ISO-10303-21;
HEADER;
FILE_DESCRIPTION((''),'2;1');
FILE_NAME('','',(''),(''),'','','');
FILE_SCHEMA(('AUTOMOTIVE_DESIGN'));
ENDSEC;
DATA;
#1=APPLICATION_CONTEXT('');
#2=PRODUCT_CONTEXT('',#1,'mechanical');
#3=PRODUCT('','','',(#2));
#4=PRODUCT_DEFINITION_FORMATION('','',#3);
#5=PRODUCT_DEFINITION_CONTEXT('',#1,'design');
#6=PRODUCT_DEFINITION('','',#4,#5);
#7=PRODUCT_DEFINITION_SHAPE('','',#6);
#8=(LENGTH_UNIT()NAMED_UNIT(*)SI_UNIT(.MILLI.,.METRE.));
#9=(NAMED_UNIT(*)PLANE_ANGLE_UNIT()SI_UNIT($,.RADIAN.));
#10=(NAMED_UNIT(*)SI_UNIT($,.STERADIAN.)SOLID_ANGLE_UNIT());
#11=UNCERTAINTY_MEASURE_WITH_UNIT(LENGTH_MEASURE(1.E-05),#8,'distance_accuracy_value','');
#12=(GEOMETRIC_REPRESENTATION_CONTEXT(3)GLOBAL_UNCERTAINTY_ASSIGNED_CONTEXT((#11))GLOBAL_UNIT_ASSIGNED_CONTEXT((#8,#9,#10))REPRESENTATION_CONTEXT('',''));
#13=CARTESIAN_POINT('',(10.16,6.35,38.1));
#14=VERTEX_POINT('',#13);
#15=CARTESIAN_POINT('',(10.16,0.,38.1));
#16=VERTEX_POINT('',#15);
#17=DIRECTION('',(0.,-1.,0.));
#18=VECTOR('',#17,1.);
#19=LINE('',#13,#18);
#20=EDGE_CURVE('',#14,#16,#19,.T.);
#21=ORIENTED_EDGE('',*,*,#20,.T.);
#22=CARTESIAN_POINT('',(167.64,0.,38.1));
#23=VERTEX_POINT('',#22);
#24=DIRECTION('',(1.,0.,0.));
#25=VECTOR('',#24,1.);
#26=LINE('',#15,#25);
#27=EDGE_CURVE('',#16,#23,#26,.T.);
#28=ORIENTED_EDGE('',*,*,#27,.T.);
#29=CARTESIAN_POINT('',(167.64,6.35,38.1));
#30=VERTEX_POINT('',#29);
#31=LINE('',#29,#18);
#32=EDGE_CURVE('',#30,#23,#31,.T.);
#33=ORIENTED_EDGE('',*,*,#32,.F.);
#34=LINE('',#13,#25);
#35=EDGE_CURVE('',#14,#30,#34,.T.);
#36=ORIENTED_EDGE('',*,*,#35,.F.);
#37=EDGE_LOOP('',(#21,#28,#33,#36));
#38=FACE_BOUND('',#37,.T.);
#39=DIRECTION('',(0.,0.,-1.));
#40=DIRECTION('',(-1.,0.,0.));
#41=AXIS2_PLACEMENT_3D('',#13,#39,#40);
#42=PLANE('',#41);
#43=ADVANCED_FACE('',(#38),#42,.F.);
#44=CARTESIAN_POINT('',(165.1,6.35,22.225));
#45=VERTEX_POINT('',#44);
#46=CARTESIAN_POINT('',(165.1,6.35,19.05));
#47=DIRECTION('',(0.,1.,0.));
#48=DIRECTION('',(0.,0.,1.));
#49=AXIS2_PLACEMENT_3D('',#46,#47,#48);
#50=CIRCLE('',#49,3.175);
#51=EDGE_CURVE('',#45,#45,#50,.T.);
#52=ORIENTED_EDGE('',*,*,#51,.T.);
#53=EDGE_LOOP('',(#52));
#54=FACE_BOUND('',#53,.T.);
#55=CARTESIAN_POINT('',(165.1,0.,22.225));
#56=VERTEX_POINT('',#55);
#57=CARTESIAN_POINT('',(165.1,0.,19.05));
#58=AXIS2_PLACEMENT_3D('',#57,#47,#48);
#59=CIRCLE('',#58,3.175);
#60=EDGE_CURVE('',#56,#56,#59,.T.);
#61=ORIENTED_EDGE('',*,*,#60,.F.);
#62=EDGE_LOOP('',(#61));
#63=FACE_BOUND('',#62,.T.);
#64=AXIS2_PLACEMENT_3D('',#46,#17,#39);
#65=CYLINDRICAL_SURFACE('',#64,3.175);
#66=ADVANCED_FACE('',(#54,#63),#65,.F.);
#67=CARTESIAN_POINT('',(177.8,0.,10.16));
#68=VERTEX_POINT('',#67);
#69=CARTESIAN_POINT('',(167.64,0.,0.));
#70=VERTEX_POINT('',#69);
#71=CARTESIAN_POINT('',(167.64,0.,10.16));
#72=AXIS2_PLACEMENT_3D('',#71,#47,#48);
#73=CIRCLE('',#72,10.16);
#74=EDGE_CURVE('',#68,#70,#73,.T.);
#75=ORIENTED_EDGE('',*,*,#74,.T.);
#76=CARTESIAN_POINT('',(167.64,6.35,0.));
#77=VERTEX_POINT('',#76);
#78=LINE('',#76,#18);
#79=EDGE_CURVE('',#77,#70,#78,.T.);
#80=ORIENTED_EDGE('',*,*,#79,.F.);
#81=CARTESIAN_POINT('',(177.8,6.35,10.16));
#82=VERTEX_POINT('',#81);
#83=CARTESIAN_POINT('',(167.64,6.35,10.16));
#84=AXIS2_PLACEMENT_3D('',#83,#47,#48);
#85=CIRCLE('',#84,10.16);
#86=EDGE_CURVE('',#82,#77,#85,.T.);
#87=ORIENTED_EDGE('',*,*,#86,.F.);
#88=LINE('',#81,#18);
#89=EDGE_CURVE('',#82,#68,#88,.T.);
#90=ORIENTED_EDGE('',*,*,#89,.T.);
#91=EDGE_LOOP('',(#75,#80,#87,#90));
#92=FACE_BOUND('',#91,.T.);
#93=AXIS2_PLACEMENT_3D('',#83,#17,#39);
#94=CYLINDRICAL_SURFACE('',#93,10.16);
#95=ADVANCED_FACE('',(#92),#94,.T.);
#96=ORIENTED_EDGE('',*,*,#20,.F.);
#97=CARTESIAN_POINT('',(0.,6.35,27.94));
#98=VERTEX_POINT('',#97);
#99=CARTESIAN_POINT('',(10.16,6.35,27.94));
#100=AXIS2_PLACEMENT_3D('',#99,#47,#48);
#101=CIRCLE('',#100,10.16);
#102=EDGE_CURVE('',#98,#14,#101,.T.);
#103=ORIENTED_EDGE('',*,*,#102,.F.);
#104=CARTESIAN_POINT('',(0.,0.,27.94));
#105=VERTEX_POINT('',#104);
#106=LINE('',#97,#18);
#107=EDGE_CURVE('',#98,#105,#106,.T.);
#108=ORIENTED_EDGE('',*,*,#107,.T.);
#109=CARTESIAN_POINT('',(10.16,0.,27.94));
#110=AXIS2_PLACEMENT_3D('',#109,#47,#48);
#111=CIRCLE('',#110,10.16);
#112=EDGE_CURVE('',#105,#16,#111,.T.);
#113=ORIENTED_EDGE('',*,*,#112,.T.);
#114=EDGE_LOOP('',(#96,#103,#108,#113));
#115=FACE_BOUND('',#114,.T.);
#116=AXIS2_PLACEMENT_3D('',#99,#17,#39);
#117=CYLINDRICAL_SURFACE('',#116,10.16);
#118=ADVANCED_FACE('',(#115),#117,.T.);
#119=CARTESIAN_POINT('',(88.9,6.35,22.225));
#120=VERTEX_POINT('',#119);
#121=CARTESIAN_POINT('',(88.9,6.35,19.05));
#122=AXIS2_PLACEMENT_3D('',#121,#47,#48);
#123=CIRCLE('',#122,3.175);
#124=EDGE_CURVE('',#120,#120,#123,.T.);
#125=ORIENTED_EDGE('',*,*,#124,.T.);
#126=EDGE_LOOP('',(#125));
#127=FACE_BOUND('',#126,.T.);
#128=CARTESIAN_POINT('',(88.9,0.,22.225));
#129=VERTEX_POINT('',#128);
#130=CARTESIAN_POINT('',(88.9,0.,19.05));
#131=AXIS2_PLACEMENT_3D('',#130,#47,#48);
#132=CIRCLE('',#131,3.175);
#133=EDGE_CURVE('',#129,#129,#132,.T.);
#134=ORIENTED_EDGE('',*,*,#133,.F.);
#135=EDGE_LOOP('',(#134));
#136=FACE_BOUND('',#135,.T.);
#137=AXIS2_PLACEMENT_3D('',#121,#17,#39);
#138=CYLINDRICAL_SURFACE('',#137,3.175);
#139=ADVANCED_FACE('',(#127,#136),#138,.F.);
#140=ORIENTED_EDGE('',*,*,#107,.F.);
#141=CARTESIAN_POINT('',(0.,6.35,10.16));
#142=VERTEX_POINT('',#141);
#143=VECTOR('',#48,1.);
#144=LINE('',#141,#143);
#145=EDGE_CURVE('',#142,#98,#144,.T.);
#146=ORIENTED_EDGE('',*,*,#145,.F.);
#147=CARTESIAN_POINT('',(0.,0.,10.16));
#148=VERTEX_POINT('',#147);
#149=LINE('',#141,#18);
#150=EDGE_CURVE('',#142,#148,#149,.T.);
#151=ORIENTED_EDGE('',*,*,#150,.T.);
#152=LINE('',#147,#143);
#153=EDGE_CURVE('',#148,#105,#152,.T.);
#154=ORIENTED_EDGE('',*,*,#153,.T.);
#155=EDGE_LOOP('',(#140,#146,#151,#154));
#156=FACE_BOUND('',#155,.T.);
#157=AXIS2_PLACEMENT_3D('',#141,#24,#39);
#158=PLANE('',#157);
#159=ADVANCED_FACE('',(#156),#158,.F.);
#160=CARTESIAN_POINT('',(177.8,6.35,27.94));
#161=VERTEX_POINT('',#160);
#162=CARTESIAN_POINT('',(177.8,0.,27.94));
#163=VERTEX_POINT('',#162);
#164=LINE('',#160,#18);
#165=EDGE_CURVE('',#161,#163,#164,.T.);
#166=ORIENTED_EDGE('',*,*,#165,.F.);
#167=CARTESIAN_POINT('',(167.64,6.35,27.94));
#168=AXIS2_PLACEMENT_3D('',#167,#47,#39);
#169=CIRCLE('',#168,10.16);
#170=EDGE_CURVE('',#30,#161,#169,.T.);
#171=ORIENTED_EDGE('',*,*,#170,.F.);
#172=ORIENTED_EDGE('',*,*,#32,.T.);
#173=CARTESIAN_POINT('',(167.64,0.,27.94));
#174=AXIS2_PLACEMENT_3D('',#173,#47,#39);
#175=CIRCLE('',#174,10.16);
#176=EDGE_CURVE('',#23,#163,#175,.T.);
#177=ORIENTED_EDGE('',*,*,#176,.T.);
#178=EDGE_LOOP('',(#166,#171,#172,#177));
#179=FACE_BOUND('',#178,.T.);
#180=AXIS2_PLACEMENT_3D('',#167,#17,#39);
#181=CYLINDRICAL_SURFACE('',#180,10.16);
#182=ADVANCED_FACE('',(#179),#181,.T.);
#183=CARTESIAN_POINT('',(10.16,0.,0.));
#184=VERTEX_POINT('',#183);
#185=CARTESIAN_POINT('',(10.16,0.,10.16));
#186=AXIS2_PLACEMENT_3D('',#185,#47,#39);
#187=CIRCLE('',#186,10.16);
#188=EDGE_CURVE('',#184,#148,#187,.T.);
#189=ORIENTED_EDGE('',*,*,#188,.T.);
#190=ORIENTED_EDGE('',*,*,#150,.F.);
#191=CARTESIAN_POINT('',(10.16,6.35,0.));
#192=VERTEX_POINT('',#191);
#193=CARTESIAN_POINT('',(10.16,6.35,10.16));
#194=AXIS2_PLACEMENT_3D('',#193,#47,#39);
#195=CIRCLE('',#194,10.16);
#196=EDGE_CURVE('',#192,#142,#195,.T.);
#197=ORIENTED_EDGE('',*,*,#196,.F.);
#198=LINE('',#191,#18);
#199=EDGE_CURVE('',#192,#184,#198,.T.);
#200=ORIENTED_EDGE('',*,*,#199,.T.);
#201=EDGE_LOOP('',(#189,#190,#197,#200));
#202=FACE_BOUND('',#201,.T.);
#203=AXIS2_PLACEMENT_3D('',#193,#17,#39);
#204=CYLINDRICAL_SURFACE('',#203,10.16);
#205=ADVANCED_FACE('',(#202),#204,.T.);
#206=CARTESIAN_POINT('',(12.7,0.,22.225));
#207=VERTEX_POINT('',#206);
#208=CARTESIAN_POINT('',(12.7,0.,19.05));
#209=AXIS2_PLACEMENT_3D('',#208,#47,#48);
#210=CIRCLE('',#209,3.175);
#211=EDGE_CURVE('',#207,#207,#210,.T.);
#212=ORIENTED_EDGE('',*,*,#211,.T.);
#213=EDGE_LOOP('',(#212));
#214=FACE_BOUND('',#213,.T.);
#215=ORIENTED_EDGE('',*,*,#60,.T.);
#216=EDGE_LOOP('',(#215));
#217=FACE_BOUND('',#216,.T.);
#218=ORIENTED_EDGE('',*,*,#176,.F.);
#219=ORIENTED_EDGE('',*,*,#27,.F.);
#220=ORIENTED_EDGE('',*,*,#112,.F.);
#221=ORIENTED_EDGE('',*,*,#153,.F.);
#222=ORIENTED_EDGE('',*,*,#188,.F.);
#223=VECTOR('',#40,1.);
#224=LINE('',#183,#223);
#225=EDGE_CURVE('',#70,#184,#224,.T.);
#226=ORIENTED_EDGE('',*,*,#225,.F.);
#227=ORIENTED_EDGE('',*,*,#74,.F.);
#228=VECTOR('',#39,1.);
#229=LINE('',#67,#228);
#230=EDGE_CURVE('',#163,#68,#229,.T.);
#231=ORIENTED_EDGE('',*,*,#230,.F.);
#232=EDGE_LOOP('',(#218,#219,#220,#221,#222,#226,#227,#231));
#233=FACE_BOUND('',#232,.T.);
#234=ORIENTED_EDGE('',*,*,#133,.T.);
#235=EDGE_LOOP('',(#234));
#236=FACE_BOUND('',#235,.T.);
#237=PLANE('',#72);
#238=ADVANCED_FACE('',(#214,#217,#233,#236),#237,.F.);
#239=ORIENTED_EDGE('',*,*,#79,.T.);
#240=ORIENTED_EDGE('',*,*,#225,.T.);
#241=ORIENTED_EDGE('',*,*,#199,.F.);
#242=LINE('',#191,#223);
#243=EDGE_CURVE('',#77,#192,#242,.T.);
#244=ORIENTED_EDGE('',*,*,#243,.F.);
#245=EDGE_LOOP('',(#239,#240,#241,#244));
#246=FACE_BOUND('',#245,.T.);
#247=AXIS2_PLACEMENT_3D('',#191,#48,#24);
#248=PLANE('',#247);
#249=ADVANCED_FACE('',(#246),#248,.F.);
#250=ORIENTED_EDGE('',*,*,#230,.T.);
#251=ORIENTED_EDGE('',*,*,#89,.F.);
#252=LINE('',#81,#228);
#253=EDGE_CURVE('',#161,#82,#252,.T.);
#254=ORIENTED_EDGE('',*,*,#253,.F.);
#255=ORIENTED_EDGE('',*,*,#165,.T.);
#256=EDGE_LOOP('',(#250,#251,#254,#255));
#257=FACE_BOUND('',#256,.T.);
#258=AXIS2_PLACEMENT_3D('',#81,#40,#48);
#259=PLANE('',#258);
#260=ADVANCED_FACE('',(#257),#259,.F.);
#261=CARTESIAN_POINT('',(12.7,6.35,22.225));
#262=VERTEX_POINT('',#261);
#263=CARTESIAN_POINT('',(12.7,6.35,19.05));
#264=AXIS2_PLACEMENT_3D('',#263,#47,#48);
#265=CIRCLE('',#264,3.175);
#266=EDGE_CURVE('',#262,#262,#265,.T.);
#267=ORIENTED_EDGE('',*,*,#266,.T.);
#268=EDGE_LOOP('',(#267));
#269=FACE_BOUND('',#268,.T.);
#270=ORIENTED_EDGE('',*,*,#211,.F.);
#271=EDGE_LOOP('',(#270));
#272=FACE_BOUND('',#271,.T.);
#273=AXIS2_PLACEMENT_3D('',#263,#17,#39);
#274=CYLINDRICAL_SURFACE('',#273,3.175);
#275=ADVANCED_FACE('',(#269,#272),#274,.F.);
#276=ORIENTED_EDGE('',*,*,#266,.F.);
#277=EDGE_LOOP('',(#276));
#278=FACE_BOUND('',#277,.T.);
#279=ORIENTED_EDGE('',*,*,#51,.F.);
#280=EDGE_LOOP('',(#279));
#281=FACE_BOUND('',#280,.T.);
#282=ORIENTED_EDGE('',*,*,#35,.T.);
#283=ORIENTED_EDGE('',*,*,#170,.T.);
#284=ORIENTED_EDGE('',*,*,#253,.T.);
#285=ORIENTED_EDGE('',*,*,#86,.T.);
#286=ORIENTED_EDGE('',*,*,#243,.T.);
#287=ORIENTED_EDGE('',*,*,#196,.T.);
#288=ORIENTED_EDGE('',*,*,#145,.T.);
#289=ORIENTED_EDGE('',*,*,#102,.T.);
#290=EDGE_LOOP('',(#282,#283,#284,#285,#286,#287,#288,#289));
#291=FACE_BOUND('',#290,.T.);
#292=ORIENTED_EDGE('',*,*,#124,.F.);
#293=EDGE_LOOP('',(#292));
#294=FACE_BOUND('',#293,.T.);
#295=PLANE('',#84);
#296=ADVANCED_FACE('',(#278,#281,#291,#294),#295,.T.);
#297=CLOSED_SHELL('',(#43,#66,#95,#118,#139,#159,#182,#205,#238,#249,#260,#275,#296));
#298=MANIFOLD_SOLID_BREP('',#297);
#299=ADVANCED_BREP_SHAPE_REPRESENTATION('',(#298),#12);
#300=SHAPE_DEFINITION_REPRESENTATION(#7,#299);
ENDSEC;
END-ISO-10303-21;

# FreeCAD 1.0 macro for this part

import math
import FreeCAD as App
import Part
import Sketcher
Q = App.Units.Quantity

doc = App.newDocument("Part")
params = doc.addObject("Spreadsheet::Sheet", "Params")
for row, (alias, value) in enumerate([
    ("sketch1_radius", "0.4 in"),
    ("sketch1_diameter", "0.25 in"),
    ("sketch1_width", "6.2 in"),
    ("sketch1_height", "0.7 in"),
    ("pad1_length", "0.25 in"),
], start=1):
    params.set(f"A{row}", alias)
    params.set(f"B{row}", "=" + value)
    params.setAlias(f"B{row}", alias)

body = doc.addObject("PartDesign::Body", "Body")

sketch1 = doc.addObject("Sketcher::SketchObject", "Sketch")
body.addObject(sketch1)
sketch1.AttachmentSupport = (doc.XZ_Plane, [""])
sketch1.MapMode = "FlatFace"
sketch1.addGeometry([
    Part.LineSegment(App.Vector(167.64, 0, 0), App.Vector(10.16, 0, 0)),
    Part.ArcOfCircle(Part.Circle(App.Vector(10.16, 10.16, 0), App.Vector(0, 0, 1), 10.16), math.radians(180), math.radians(270)),
    Part.LineSegment(App.Vector(0, 10.16, 0), App.Vector(0, 27.94, 0)),
    Part.ArcOfCircle(Part.Circle(App.Vector(10.16, 27.94, 0), App.Vector(0, 0, 1), 10.16), math.radians(90), math.radians(180)),
    Part.LineSegment(App.Vector(10.16, 38.1, 0), App.Vector(167.64, 38.1, 0)),
    Part.ArcOfCircle(Part.Circle(App.Vector(167.64, 27.94, 0), App.Vector(0, 0, 1), 10.16), math.radians(0), math.radians(90)),
    Part.LineSegment(App.Vector(177.8, 27.94, 0), App.Vector(177.8, 10.16, 0)),
    Part.ArcOfCircle(Part.Circle(App.Vector(167.64, 10.16, 0), App.Vector(0, 0, 1), 10.16), math.radians(-90), math.radians(0)),
    Part.Circle(App.Vector(165.1, 19.05, 0), App.Vector(0, 0, 1), 3.175),
    Part.Circle(App.Vector(88.9, 19.05, 0), App.Vector(0, 0, 1), 3.175),
    Part.Circle(App.Vector(12.7, 19.05, 0), App.Vector(0, 0, 1), 3.175),
], False)
sketch1.addConstraint([
    Sketcher.Constraint("Tangent", 0, 2, 1, 2),
    Sketcher.Constraint("Tangent", 1, 1, 2, 1),
    Sketcher.Constraint("Tangent", 2, 2, 3, 2),
    Sketcher.Constraint("Tangent", 3, 1, 4, 1),
    Sketcher.Constraint("Tangent", 4, 2, 5, 2),
    Sketcher.Constraint("Tangent", 5, 1, 6, 1),
    Sketcher.Constraint("Tangent", 6, 2, 7, 2),
    Sketcher.Constraint("Tangent", 7, 1, 0, 1),
    Sketcher.Constraint("Horizontal", 0),
    Sketcher.Constraint("Vertical", 2),
    Sketcher.Constraint("Horizontal", 4),
    Sketcher.Constraint("Vertical", 6),
    Sketcher.Constraint("Equal", 1, 3),
    Sketcher.Constraint("Equal", 3, 5),
    Sketcher.Constraint("Equal", 5, 7),
    Sketcher.Constraint("Equal", 8, 9),
    Sketcher.Constraint("Equal", 9, 10),
    Sketcher.Constraint("PointOnObject", 0, 2, -1),
    Sketcher.Constraint("PointOnObject", 1, 1, -2),
    Sketcher.Constraint("Horizontal", 8, 3, 9, 3),
    Sketcher.Constraint("Horizontal", 9, 3, 10, 3),
    Sketcher.Constraint("Radius", 1, Q("0.4 in")),
    Sketcher.Constraint("Diameter", 8, Q("0.25 in")),
    Sketcher.Constraint("DistanceX", 0, 2, 0, 1, Q("6.2 in")),
    Sketcher.Constraint("DistanceY", 2, 1, 2, 2, Q("0.7 in")),
    Sketcher.Constraint("DistanceX", 9, 3, 8, 3, Q("3 in")),
    Sketcher.Constraint("DistanceX", 10, 3, 9, 3, Q("3 in")),
    Sketcher.Constraint("DistanceX", -1, 1, 8, 3, Q("6.5 in")),
    Sketcher.Constraint("DistanceY", -1, 1, 8, 3, Q("0.75 in")),
])
sketch1.setExpression("Constraints[21]", "Params.sketch1_radius")
sketch1.setExpression("Constraints[22]", "Params.sketch1_diameter")
sketch1.setExpression("Constraints[23]", "Params.sketch1_width")
sketch1.setExpression("Constraints[24]", "Params.sketch1_height")
pad1 = doc.addObject("PartDesign::Pad", "Pad")
body.addObject(pad1)
pad1.Profile = sketch1
pad1.setExpression("Length", "Params.pad1_length")
pad1.Reversed = True

doc.recompute()
